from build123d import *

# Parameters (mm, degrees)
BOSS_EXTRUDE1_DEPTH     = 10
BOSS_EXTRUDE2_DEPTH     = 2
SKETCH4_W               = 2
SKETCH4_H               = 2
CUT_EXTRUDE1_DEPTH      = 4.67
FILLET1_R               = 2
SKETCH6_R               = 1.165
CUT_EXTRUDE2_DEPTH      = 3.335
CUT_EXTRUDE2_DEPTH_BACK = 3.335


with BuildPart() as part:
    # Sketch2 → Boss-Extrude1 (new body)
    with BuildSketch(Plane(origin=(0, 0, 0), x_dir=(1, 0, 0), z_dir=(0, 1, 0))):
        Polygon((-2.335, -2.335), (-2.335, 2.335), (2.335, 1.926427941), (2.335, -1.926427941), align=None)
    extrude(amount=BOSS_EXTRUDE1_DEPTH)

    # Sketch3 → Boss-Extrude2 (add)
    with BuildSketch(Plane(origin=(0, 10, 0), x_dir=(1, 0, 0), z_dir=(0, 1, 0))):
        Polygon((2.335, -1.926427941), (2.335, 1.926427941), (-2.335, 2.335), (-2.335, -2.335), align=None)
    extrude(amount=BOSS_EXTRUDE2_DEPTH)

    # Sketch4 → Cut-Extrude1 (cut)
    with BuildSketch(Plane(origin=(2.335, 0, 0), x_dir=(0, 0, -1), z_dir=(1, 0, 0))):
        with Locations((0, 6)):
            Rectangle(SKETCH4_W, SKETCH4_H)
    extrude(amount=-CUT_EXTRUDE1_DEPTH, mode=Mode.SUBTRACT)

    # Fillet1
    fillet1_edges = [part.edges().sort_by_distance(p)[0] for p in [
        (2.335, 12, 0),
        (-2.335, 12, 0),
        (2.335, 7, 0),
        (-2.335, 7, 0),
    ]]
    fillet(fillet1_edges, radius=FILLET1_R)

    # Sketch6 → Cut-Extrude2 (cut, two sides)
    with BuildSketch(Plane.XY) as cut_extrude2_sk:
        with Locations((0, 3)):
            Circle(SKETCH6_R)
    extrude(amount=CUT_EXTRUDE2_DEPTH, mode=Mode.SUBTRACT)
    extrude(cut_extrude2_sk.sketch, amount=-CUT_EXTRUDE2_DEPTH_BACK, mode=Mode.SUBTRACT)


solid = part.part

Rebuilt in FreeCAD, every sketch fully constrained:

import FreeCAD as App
import Part
import Sketcher

V = App.Vector
Q = App.Units.Quantity


def edges_at(feature, points):
    """Names of the edges that pass closest to the given points."""
    edges = feature.Shape.Edges
    near = lambda p: min(range(len(edges)), key=lambda i: edges[i].distToShape(Part.Vertex(*p))[0])
    return sorted({f"Edge{near(p) + 1}" for p in points})

doc = App.newDocument("Part")
body = doc.addObject("PartDesign::Body", "Body")

# Sketch on XZ plane
sketch1 = doc.addObject("Sketcher::SketchObject", "Sketch")
body.addObject(sketch1)
sketch1.AttachmentSupport = (doc.XZ_Plane, [""])
sketch1.MapMode = "FlatFace"
sketch1.addGeometry(Part.LineSegment(V(-2.3, -2.3, 0), V(-2.3, 2.3, 0)), False)
sketch1.addGeometry(Part.LineSegment(V(-2.3, 2.3, 0), V(2.3, 1.9, 0)), False)
sketch1.addGeometry(Part.LineSegment(V(2.3, 1.9, 0), V(2.3, -1.9, 0)), False)
sketch1.addGeometry(Part.LineSegment(V(2.3, -1.9, 0), V(-2.3, -2.3, 0)), False)
sketch1.addConstraint(Sketcher.Constraint("Coincident", 0, 2, 1, 1))
sketch1.addConstraint(Sketcher.Constraint("Coincident", 1, 2, 2, 1))
sketch1.addConstraint(Sketcher.Constraint("Coincident", 2, 2, 3, 1))
sketch1.addConstraint(Sketcher.Constraint("Coincident", 3, 2, 0, 1))
sketch1.addConstraint(Sketcher.Constraint("Vertical", 0))
sketch1.addConstraint(Sketcher.Constraint("Vertical", 2))
sketch1.addConstraint(Sketcher.Constraint("Equal", 1, 3))
sketch1.addConstraint(Sketcher.Constraint("Angle", 1, Q("-5 deg")))
sketch1.addConstraint(Sketcher.Constraint("DistanceY", 0, 1, 0, 2, 4.67))
sketch1.addConstraint(Sketcher.Constraint("DistanceX", 0, 2, 1, 2, 4.67))
sketch1.addConstraint(Sketcher.Constraint("DistanceX", 0, 2, -1, 1, 2.335))
sketch1.addConstraint(Sketcher.Constraint("DistanceY", -1, 1, 0, 2, 2.335))
pad1 = doc.addObject("PartDesign::Pad", "Pad")
body.addObject(pad1)
pad1.Profile = sketch1
pad1.Length = 10
pad1.Reversed = True

# Sketch on XZ plane
sketch2 = doc.addObject("Sketcher::SketchObject", "Sketch001")
body.addObject(sketch2)
sketch2.AttachmentSupport = (doc.XZ_Plane, [""])
sketch2.MapMode = "FlatFace"
sketch2.AttachmentOffset = App.Placement(V(0, 0, -10), App.Rotation())
sketch2.addGeometry(Part.LineSegment(V(2.3, 1.9, 0), V(2.3, -1.9, 0)), False)
sketch2.addGeometry(Part.LineSegment(V(2.3, -1.9, 0), V(-2.3, -2.3, 0)), False)
sketch2.addGeometry(Part.LineSegment(V(-2.3, -2.3, 0), V(-2.3, 2.3, 0)), False)
sketch2.addGeometry(Part.LineSegment(V(-2.3, 2.3, 0), V(2.3, 1.9, 0)), False)
sketch2.addConstraint(Sketcher.Constraint("Coincident", 0, 2, 1, 1))
sketch2.addConstraint(Sketcher.Constraint("Coincident", 1, 2, 2, 1))
sketch2.addConstraint(Sketcher.Constraint("Coincident", 2, 2, 3, 1))
sketch2.addConstraint(Sketcher.Constraint("Coincident", 3, 2, 0, 1))
sketch2.addConstraint(Sketcher.Constraint("Vertical", 0))
sketch2.addConstraint(Sketcher.Constraint("Vertical", 2))
sketch2.addConstraint(Sketcher.Constraint("Equal", 1, 3))
sketch2.addConstraint(Sketcher.Constraint("Angle", 1, Q("-175 deg")))
sketch2.addConstraint(Sketcher.Constraint("DistanceY", 2, 1, 2, 2, 4.67))
sketch2.addConstraint(Sketcher.Constraint("DistanceX", 1, 2, 0, 2, 4.67))
sketch2.addConstraint(Sketcher.Constraint("DistanceX", -1, 1, 0, 2, 2.335))
sketch2.addConstraint(Sketcher.Constraint("DistanceY", 1, 2, -1, 1, 2.335))
pad2 = doc.addObject("PartDesign::Pad", "Pad001")
body.addObject(pad2)
pad2.Profile = sketch2
pad2.Length = 2
pad2.Reversed = True

# Sketch on YZ plane
sketch3 = doc.addObject("Sketcher::SketchObject", "Sketch002")
body.addObject(sketch3)
sketch3.AttachmentSupport = (doc.YZ_Plane, [""])
sketch3.MapMode = "FlatFace"
sketch3.AttachmentOffset = App.Placement(V(0, 0, 2.335), App.Rotation())
sketch3.addGeometry(Part.LineSegment(V(7, 1, 0), V(5, 1, 0)), False)
sketch3.addGeometry(Part.LineSegment(V(5, 1, 0), V(5, -1, 0)), False)
sketch3.addGeometry(Part.LineSegment(V(5, -1, 0), V(7, -1, 0)), False)
sketch3.addGeometry(Part.LineSegment(V(7, -1, 0), V(7, 1, 0)), False)
sketch3.addConstraint(Sketcher.Constraint("Coincident", 0, 2, 1, 1))
sketch3.addConstraint(Sketcher.Constraint("Coincident", 1, 2, 2, 1))
sketch3.addConstraint(Sketcher.Constraint("Coincident", 2, 2, 3, 1))
sketch3.addConstraint(Sketcher.Constraint("Coincident", 3, 2, 0, 1))
sketch3.addConstraint(Sketcher.Constraint("Horizontal", 0))
sketch3.addConstraint(Sketcher.Constraint("Vertical", 1))
sketch3.addConstraint(Sketcher.Constraint("Horizontal", 2))
sketch3.addConstraint(Sketcher.Constraint("Vertical", 3))
sketch3.addConstraint(Sketcher.Constraint("Equal", 2, 1))
sketch3.addConstraint(Sketcher.Constraint("DistanceX", 0, 2, 0, 1, 2.0))
sketch3.addConstraint(Sketcher.Constraint("DistanceX", -1, 1, 0, 2, 5.0))
sketch3.addConstraint(Sketcher.Constraint("DistanceY", -1, 1, 0, 2, 1.0))
pocket1 = doc.addObject("PartDesign::Pocket", "Pocket")
body.addObject(pocket1)
pocket1.Profile = sketch3
pocket1.Length = 4.67
doc.recompute()

fillet = doc.addObject("PartDesign::Fillet", "Fillet")
body.addObject(fillet)
fillet.Base = (pocket1, edges_at(pocket1, [
    (2.335, 12, 0),
    (-2.335, 12, 0),
    (2.335, 7, 0),
    (-2.335, 7, 0),
]))
fillet.Radius = 2

# Sketch on XY plane
sketch4 = doc.addObject("Sketcher::SketchObject", "Sketch003")
body.addObject(sketch4)
sketch4.AttachmentSupport = (doc.XY_Plane, [""])
sketch4.MapMode = "FlatFace"
sketch4.addGeometry(Part.Circle(V(0, 3, 0), V(0, 0, 1), 1.2), False)
sketch4.addConstraint(Sketcher.Constraint("PointOnObject", 0, 3, -2))
sketch4.addConstraint(Sketcher.Constraint("Diameter", 0, 2.33))
sketch4.addConstraint(Sketcher.Constraint("DistanceY", -1, 1, 0, 3, 3.0))
pocket2 = doc.addObject("PartDesign::Pocket", "Pocket001")
body.addObject(pocket2)
pocket2.Profile = sketch4
pocket2.Type = "ThroughAll"
pocket2.Midplane = True

doc.recompute()
